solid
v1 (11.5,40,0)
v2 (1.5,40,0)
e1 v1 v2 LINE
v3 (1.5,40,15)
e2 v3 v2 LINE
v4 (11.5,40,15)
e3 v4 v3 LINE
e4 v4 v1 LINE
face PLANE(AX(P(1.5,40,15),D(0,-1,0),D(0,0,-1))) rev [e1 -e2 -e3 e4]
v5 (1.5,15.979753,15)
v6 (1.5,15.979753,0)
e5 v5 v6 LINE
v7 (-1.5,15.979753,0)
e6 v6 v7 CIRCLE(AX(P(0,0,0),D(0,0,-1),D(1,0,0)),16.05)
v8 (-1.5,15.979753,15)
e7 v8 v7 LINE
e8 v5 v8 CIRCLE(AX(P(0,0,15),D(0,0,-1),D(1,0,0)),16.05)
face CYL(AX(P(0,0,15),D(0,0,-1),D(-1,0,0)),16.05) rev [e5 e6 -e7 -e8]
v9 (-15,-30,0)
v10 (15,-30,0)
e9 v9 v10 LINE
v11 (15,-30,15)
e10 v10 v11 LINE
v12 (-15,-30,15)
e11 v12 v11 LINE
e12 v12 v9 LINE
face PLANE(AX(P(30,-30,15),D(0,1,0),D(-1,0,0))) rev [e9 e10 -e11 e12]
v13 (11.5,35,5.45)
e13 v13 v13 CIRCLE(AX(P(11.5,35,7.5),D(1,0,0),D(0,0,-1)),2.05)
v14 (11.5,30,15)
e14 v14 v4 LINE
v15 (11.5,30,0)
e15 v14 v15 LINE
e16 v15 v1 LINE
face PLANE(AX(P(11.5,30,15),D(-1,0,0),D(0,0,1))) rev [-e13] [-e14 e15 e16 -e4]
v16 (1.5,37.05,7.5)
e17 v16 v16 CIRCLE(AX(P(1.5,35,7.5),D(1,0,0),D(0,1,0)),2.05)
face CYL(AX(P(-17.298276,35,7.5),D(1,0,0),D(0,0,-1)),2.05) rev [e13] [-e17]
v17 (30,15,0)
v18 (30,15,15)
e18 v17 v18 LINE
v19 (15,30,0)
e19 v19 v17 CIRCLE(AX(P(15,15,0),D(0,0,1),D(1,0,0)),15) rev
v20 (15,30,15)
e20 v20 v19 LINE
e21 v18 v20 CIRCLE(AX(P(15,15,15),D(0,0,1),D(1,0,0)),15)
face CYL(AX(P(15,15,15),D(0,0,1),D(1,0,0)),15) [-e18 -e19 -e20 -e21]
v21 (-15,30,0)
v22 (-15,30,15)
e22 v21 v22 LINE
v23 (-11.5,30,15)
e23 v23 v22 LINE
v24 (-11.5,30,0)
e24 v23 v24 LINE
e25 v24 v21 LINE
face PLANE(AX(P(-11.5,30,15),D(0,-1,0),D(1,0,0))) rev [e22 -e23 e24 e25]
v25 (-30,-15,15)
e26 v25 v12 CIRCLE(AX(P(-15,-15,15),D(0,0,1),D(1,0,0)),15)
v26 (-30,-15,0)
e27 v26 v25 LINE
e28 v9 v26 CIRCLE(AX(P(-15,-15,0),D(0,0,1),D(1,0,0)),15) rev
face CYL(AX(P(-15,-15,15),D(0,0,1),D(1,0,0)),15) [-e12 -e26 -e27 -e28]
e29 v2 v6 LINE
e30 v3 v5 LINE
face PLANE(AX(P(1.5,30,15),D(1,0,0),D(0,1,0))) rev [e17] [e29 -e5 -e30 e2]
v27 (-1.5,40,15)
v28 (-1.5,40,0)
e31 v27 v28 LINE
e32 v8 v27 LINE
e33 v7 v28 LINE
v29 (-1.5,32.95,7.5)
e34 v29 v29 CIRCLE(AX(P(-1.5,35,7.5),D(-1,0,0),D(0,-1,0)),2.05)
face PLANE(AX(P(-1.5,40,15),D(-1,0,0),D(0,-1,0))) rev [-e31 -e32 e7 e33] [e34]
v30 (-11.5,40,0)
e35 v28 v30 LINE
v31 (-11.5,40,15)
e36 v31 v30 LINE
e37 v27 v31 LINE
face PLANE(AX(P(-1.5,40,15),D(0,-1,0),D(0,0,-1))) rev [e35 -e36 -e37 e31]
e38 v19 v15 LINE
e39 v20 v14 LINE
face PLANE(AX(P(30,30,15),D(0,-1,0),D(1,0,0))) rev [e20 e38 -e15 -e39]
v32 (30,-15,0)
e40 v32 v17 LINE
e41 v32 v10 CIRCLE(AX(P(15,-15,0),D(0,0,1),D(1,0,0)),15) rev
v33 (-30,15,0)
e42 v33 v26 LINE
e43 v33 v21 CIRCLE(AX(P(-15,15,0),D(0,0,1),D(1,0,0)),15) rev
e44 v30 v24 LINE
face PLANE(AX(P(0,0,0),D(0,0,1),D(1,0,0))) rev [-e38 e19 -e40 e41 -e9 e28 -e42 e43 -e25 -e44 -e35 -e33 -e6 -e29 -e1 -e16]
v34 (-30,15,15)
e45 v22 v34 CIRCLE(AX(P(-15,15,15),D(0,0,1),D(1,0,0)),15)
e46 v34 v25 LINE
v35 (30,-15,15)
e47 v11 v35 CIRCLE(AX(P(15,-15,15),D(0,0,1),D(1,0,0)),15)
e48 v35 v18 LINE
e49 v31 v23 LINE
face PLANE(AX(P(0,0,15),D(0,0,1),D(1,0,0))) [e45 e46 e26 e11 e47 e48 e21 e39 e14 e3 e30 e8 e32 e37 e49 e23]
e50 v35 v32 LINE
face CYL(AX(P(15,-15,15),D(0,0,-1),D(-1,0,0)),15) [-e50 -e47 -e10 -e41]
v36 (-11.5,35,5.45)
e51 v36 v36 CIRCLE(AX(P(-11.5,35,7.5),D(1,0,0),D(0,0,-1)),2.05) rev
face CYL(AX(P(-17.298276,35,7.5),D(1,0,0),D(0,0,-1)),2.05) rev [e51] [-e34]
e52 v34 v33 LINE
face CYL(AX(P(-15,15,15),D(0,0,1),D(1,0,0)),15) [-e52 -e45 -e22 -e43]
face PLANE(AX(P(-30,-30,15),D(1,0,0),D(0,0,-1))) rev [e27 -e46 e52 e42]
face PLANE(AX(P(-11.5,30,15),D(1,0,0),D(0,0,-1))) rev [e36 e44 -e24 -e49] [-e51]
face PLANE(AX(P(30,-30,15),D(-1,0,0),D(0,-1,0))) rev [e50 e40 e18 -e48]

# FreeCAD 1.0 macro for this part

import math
import FreeCAD as App
import Part
import Sketcher
Q = App.Units.Quantity


def edges_at(feature, points):
    """Names of the edges that pass closest to the given points."""
    edges = feature.Shape.Edges
    near = lambda p: min(range(len(edges)), key=lambda i: edges[i].distToShape(Part.Vertex(*p))[0])
    return sorted({f"Edge{near(p) + 1}" for p in points})

doc = App.newDocument("Part")
body = doc.addObject("PartDesign::Body", "Body")

sketch1 = body.newObject("Sketcher::SketchObject", "Sketch")
sketch1.AttachmentSupport = (doc.getObject("XY_Plane"), [""])
sketch1.MapMode = "FlatFace"
sketch1.addGeometry([
    Part.LineSegment(App.Vector(-1.5, 16, 0), App.Vector(-1.5, 40, 0)),
    Part.LineSegment(App.Vector(-1.5, 40, 0), App.Vector(-11.5, 40, 0)),
    Part.LineSegment(App.Vector(-11.5, 40, 0), App.Vector(-11.5, 30, 0)),
    Part.LineSegment(App.Vector(-11.5, 30, 0), App.Vector(-30, 30, 0)),
    Part.LineSegment(App.Vector(-30, 30, 0), App.Vector(-30, -30, 0)),
    Part.LineSegment(App.Vector(-30, -30, 0), App.Vector(30, -30, 0)),
    Part.LineSegment(App.Vector(30, -30, 0), App.Vector(30, 30, 0)),
    Part.LineSegment(App.Vector(30, 30, 0), App.Vector(11.5, 30, 0)),
    Part.LineSegment(App.Vector(11.5, 30, 0), App.Vector(11.5, 40, 0)),
    Part.LineSegment(App.Vector(11.5, 40, 0), App.Vector(1.5, 40, 0)),
    Part.LineSegment(App.Vector(1.5, 40, 0), App.Vector(1.5, 16, 0)),
    Part.ArcOfCircle(Part.Circle(App.Vector(0, 0, 0), App.Vector(0, 0, 1), 16.1), math.radians(95), math.radians(445)),
], False)
sketch1.addConstraint([
    Sketcher.Constraint("Coincident", 0, 2, 1, 1),
    Sketcher.Constraint("Coincident", 1, 2, 2, 1),
    Sketcher.Constraint("Coincident", 2, 2, 3, 1),
    Sketcher.Constraint("Coincident", 3, 2, 4, 1),
    Sketcher.Constraint("Coincident", 4, 2, 5, 1),
    Sketcher.Constraint("Coincident", 5, 2, 6, 1),
    Sketcher.Constraint("Coincident", 6, 2, 7, 1),
    Sketcher.Constraint("Coincident", 7, 2, 8, 1),
    Sketcher.Constraint("Coincident", 8, 2, 9, 1),
    Sketcher.Constraint("Coincident", 9, 2, 10, 1),
    Sketcher.Constraint("Coincident", 10, 2, 11, 2),
    Sketcher.Constraint("Coincident", 11, 1, 0, 1),
    Sketcher.Constraint("Vertical", 0),
    Sketcher.Constraint("Horizontal", 1),
    Sketcher.Constraint("Vertical", 2),
    Sketcher.Constraint("Horizontal", 3),
    Sketcher.Constraint("Vertical", 4),
    Sketcher.Constraint("Horizontal", 5),
    Sketcher.Constraint("Vertical", 6),
    Sketcher.Constraint("Horizontal", 7),
    Sketcher.Constraint("Vertical", 8),
    Sketcher.Constraint("Horizontal", 9),
    Sketcher.Constraint("Vertical", 10),
    Sketcher.Constraint("Coincident", 11, 3, -1, 1),
    Sketcher.Constraint("Symmetric", 3, 2, 5, 2, -1, 1),
    Sketcher.Constraint("Symmetric", 2, 2, 7, 2, -2),
    Sketcher.Constraint("Symmetric", 0, 2, 9, 2, -2),
    Sketcher.Constraint("Equal", 9, 2),
    Sketcher.Constraint("Equal", 5, 4),
    Sketcher.Constraint("DistanceX", 1, 2, 1, 1, Q("10 mm")),
    Sketcher.Constraint("DistanceX", 5, 1, 5, 2, Q("60 mm")),
    Sketcher.Constraint("Radius", 11, Q("16.05 mm")),
    Sketcher.Constraint("DistanceX", 3, 2, 3, 1, Q("18.5 mm")),
])
pad1 = body.newObject("PartDesign::Pad", "Pad")
pad1.Profile = sketch1
pad1.Length = 15
doc.recompute()

fillet = body.newObject("PartDesign::Fillet", "Fillet")
fillet.Base = (pad1, edges_at(pad1, [(30, 30, 7.5)]))
fillet.Radius = 15
doc.recompute()

fillet2 = body.newObject("PartDesign::Fillet", "Fillet001")
fillet2.Base = (fillet, edges_at(fillet, [(-30, 30, 7.5)]))
fillet2.Radius = 15
doc.recompute()

fillet3 = body.newObject("PartDesign::Fillet", "Fillet002")
fillet3.Base = (fillet2, edges_at(fillet2, [(-30, -30, 7.5)]))
fillet3.Radius = 15
doc.recompute()

fillet4 = body.newObject("PartDesign::Fillet", "Fillet003")
fillet4.Base = (fillet3, edges_at(fillet3, [(30, -30, 7.5)]))
fillet4.Radius = 15

sketch2 = body.newObject("Sketcher::SketchObject", "Sketch001")
sketch2.AttachmentSupport = (doc.getObject("YZ_Plane"), [""])
sketch2.MapMode = "FlatFace"
sketch2.AttachmentOffset = App.Placement(App.Vector(0, 0, 11.5), App.Rotation())
sketch2.addGeometry(Part.Circle(App.Vector(35, 7.5, 0), App.Vector(0, 0, 1), 2), False)
sketch2.addConstraint([
    Sketcher.Constraint("Diameter", 0, Q("4.1 mm")),
    Sketcher.Constraint("DistanceX", -1, 1, 0, 3, Q("35 mm")),
    Sketcher.Constraint("DistanceY", -1, 1, 0, 3, Q("7.5 mm")),
])
pocket1 = body.newObject("PartDesign::Pocket", "Pocket")
pocket1.Profile = sketch2
pocket1.Length = 23

doc.recompute()
